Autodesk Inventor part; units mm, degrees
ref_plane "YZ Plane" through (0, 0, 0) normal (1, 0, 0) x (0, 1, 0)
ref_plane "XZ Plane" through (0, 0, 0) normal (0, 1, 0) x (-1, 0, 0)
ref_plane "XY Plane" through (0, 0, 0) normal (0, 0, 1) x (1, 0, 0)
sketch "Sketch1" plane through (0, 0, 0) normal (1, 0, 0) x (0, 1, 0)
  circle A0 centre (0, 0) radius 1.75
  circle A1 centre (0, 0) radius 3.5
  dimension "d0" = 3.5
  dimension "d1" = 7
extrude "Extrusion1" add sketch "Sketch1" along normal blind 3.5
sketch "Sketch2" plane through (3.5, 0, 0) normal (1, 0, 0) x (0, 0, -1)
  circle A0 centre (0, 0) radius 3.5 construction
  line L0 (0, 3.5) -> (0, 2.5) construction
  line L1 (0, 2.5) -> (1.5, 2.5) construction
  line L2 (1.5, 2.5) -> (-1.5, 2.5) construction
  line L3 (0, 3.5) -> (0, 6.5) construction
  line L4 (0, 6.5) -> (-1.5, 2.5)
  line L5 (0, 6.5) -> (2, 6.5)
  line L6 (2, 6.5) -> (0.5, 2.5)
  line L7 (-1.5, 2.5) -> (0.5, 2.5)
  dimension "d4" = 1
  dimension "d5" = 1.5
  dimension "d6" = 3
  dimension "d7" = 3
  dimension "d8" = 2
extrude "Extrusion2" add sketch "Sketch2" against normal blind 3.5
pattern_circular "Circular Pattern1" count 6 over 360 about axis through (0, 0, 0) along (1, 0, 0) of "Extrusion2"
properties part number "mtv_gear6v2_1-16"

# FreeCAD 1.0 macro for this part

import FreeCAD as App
import Part
import Sketcher

V = App.Vector
Q = App.Units.Quantity

doc = App.newDocument("Part")
body = doc.addObject("PartDesign::Body", "Body")

# Sketch on YZ plane
sketch1 = body.newObject("Sketcher::SketchObject", "Sketch")
sketch1.AttachmentSupport = (doc.getObject("YZ_Plane"), [""])
sketch1.MapMode = "FlatFace"
sketch1.addGeometry([
    Part.Circle(V(0, 0, 0), V(0, 0, 1), 3.5),
    Part.Circle(V(0, 0, 0), V(0, 0, 1), 1.75),
], False)
sketch1.addConstraint([
    Sketcher.Constraint("Coincident", 0, 3, -1, 1),
    Sketcher.Constraint("Coincident", 1, 3, -1, 1),
    Sketcher.Constraint("Diameter", 0, Q("7 mm")),
    Sketcher.Constraint("Diameter", 1, Q("3.5 mm")),
])
pad1 = body.newObject("PartDesign::Pad", "Pad")
pad1.Profile = sketch1
pad1.Length = 3.5

# Sketch on YZ plane
sketch2 = body.newObject("Sketcher::SketchObject", "Sketch001")
sketch2.AttachmentSupport = (doc.getObject("YZ_Plane"), [""])
sketch2.MapMode = "FlatFace"
sketch2.AttachmentOffset = App.Placement(V(0, 0, 3.5), App.Rotation())
sketch2.addGeometry([
    Part.LineSegment(V(6.5, -2, 0), V(6.5, 0, 0)),
    Part.LineSegment(V(6.5, 0, 0), V(2.5, 1.5, 0)),
    Part.LineSegment(V(2.5, 1.5, 0), V(2.5, -0.5, 0)),
    Part.LineSegment(V(2.5, -0.5, 0), V(6.5, -2, 0)),
], False)
sketch2.addConstraint([
    Sketcher.Constraint("Coincident", 0, 2, 1, 1),
    Sketcher.Constraint("Coincident", 1, 2, 2, 1),
    Sketcher.Constraint("Coincident", 2, 2, 3, 1),
    Sketcher.Constraint("Coincident", 3, 2, 0, 1),
    Sketcher.Constraint("Vertical", 0),
    Sketcher.Constraint("Vertical", 2),
    Sketcher.Constraint("PointOnObject", 0, 2, -1),
    Sketcher.Constraint("Parallel", 1, 3),
    Sketcher.Constraint("DistanceY", 0, 1, 0, 2, Q("2 mm")),
    Sketcher.Constraint("DistanceY", -1, 1, 1, 2, Q("1.5 mm")),
    Sketcher.Constraint("DistanceX", 1, 2, 0, 2, Q("4 mm")),
    Sketcher.Constraint("DistanceX", -1, 1, 0, 2, Q("6.5 mm")),
])
pad2 = body.newObject("PartDesign::Pad", "Pad001")
pad2.Profile = sketch2
pad2.Length = 3.5
pad2.Reversed = True
doc.recompute()

polarpattern = body.newObject("PartDesign::PolarPattern", "PolarPattern")
polarpattern.Originals = [pad2]
polarpattern.Axis = (doc.getObject("X_Axis"), [""])
polarpattern.Angle = 360
polarpattern.Occurrences = 6
body.Tip = polarpattern

doc.recompute()
